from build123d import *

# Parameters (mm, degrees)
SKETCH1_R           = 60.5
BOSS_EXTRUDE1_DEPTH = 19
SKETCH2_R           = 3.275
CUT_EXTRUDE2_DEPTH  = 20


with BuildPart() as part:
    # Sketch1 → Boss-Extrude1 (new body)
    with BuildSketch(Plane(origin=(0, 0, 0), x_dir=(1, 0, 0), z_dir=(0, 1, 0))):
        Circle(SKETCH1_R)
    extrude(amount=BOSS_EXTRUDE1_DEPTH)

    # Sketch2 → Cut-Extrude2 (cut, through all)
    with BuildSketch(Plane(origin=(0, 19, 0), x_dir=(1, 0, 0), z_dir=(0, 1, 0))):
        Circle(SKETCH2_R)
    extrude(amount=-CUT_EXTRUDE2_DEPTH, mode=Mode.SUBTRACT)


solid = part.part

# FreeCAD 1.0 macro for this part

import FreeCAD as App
import Part
import Sketcher
from FreeCAD import Vector
Q = App.Units.Quantity

doc = App.newDocument("Part")
params = doc.addObject("Spreadsheet::Sheet", "Params")
for row, (alias, value) in enumerate([
    ("sketch1_diameter", "121 mm"),
    ("pad1_length", "19 mm"),
    ("sketch2_diameter", "6.55 mm"),
], start=1):
    params.set(f"A{row}", alias)
    params.set(f"B{row}", "=" + value)
    params.setAlias(f"B{row}", alias)

body = doc.addObject("PartDesign::Body", "Body")

sketch1 = doc.addObject("Sketcher::SketchObject", "Sketch")
body.addObject(sketch1)
sketch1.AttachmentSupport = (doc.XZ_Plane, [""])
sketch1.MapMode = "FlatFace"
sketch1.addGeometry(Part.Circle(Vector(0, 0, 0), Vector(0, 0, 1), 60.5), False)
sketch1.addConstraint(Sketcher.Constraint("Coincident", 0, 3, -1, 1))
sketch1.addConstraint(Sketcher.Constraint("Diameter", 0, Q("121 mm")))
sketch1.setExpression("Constraints[1]", "Params.sketch1_diameter")
pad1 = doc.addObject("PartDesign::Pad", "Pad")
body.addObject(pad1)
pad1.Profile = sketch1
pad1.setExpression("Length", "Params.pad1_length")
pad1.Reversed = True

sketch2 = doc.addObject("Sketcher::SketchObject", "Sketch001")
body.addObject(sketch2)
sketch2.AttachmentSupport = (doc.XZ_Plane, [""])
sketch2.MapMode = "FlatFace"
sketch2.AttachmentOffset = App.Placement(Vector(0, 0, -19), App.Rotation())
sketch2.addGeometry(Part.Circle(Vector(0, 0, 0), Vector(0, 0, 1), 3.275), False)
sketch2.addConstraint(Sketcher.Constraint("Coincident", 0, 3, -1, 1))
sketch2.addConstraint(Sketcher.Constraint("Diameter", 0, Q("6.55 mm")))
sketch2.setExpression("Constraints[1]", "Params.sketch2_diameter")
pocket1 = doc.addObject("PartDesign::Pocket", "Pocket")
body.addObject(pocket1)
pocket1.Profile = sketch2
pocket1.Type = "ThroughAll"
pocket1.Reversed = True

doc.recompute()
